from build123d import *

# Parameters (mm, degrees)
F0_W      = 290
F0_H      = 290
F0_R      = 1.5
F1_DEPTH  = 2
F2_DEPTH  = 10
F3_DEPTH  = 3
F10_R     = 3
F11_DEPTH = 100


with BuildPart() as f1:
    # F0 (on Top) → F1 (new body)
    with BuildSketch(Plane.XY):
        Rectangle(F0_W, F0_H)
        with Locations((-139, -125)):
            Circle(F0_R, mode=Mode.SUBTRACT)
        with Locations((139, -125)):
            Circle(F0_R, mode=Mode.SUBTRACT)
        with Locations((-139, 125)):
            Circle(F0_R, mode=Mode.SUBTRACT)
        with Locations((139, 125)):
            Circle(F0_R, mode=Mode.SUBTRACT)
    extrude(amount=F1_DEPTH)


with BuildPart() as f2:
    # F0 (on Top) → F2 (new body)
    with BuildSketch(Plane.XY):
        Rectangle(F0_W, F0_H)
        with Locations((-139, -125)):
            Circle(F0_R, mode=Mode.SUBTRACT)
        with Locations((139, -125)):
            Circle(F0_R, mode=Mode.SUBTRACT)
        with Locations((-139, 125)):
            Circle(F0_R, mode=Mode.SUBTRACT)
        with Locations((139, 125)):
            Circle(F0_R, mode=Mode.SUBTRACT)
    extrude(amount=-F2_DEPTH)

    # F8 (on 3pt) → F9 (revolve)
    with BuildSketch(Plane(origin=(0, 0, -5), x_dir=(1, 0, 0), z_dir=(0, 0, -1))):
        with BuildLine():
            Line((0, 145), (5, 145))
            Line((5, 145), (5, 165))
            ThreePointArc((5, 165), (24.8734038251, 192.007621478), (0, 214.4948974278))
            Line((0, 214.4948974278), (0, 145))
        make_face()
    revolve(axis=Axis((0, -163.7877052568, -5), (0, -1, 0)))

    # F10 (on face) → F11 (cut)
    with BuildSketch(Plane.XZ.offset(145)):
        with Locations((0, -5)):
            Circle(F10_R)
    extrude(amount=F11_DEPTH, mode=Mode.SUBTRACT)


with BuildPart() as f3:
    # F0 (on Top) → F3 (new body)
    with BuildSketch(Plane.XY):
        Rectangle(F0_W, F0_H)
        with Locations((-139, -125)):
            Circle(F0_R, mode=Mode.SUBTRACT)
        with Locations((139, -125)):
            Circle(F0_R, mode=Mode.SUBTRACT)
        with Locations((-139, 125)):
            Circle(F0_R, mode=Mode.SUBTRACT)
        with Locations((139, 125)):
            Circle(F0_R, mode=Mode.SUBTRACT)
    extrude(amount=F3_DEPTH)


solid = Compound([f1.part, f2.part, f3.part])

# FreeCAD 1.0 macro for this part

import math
import FreeCAD as App
import Part
import Sketcher
from FreeCAD import Vector
Q = App.Units.Quantity


def add_polygon(sketch, points):
    """Adds a closed chain of lines whose ends are joined by coincident constraints."""
    first, n = sketch.GeometryCount, len(points)
    for a, b in zip(points, points[1:] + points[:1]):
        sketch.addGeometry(Part.LineSegment(App.Vector(*a, 0), App.Vector(*b, 0)), False)
    for i in range(n):
        sketch.addConstraint(Sketcher.Constraint("Coincident", first + i, 2, first + (i + 1) % n, 1))

doc = App.newDocument("Part")
body = doc.addObject("PartDesign::Body", "Body")

# Sketch on XY plane
sketch1 = body.newObject("Sketcher::SketchObject", "Sketch")
sketch1.AttachmentSupport = (doc.getObject("XY_Plane"), [""])
sketch1.MapMode = "FlatFace"
add_polygon(sketch1, [(-145, 145), (-145, -145), (145, -145), (145, 145)])  # lines 0-3
sketch1.addGeometry(Part.Circle(Vector(-139, -125, 0), Vector(0, 0, 1), 1.5), False)  # 4
sketch1.addGeometry(Part.Circle(Vector(139, -125, 0), Vector(0, 0, 1), 1.5), False)  # 5
sketch1.addGeometry(Part.Circle(Vector(-139, 125, 0), Vector(0, 0, 1), 1.5), False)  # 6
sketch1.addGeometry(Part.Circle(Vector(139, 125, 0), Vector(0, 0, 1), 1.5), False)  # 7
sketch1.addConstraint([
    Sketcher.Constraint("Vertical", 0),
    Sketcher.Constraint("Horizontal", 1),
    Sketcher.Constraint("Vertical", 2),
    Sketcher.Constraint("Horizontal", 3),
    Sketcher.Constraint("Equal", 4, 5),
    Sketcher.Constraint("Equal", 5, 6),
    Sketcher.Constraint("Equal", 6, 7),
    Sketcher.Constraint("Symmetric", 5, 3, 6, 3, -1, 1),
    Sketcher.Constraint("Symmetric", 4, 3, 7, 3, -1, 1),
    Sketcher.Constraint("Symmetric", 0, 2, 2, 2, -1, 1),
    Sketcher.Constraint("Symmetric", 4, 3, 5, 3, -2),
    Sketcher.Constraint("Equal", 3, 0),
    Sketcher.Constraint("Diameter", 4, Q("3 mm")),
    Sketcher.Constraint("DistanceX", 1, 1, 1, 2, Q("290 mm")),
    Sketcher.Constraint("DistanceX", 4, 3, -1, 1, Q("139 mm")),
    Sketcher.Constraint("DistanceY", 4, 3, -1, 1, Q("125 mm")),
])
pad1 = body.newObject("PartDesign::Pad", "Pad")
pad1.Profile = sketch1
pad1.Length = 2
body2 = doc.addObject("PartDesign::Body", "Body001")

# Sketch on XY plane
sketch2 = body2.newObject("Sketcher::SketchObject", "Sketch001")
sketch2.AttachmentSupport = (doc.getObject("XY_Plane001"), [""])
sketch2.MapMode = "FlatFace"
add_polygon(sketch2, [(-145, 145), (-145, -145), (145, -145), (145, 145)])  # lines 0-3
sketch2.addGeometry(Part.Circle(Vector(-139, -125, 0), Vector(0, 0, 1), 1.5), False)  # 4
sketch2.addGeometry(Part.Circle(Vector(139, -125, 0), Vector(0, 0, 1), 1.5), False)  # 5
sketch2.addGeometry(Part.Circle(Vector(-139, 125, 0), Vector(0, 0, 1), 1.5), False)  # 6
sketch2.addGeometry(Part.Circle(Vector(139, 125, 0), Vector(0, 0, 1), 1.5), False)  # 7
sketch2.addConstraint([
    Sketcher.Constraint("Vertical", 0),
    Sketcher.Constraint("Horizontal", 1),
    Sketcher.Constraint("Vertical", 2),
    Sketcher.Constraint("Horizontal", 3),
    Sketcher.Constraint("Equal", 4, 5),
    Sketcher.Constraint("Equal", 5, 6),
    Sketcher.Constraint("Equal", 6, 7),
    Sketcher.Constraint("Symmetric", 5, 3, 6, 3, -1, 1),
    Sketcher.Constraint("Symmetric", 4, 3, 7, 3, -1, 1),
    Sketcher.Constraint("Symmetric", 0, 2, 2, 2, -1, 1),
    Sketcher.Constraint("Symmetric", 4, 3, 5, 3, -2),
    Sketcher.Constraint("Equal", 3, 0),
    Sketcher.Constraint("Diameter", 4, Q("3 mm")),
    Sketcher.Constraint("DistanceX", 1, 1, 1, 2, Q("290 mm")),
    Sketcher.Constraint("DistanceX", 4, 3, -1, 1, Q("139 mm")),
    Sketcher.Constraint("DistanceY", 4, 3, -1, 1, Q("125 mm")),
])
pad2 = body2.newObject("PartDesign::Pad", "Pad001")
pad2.Profile = sketch2
pad2.Length = 10
pad2.Reversed = True

# Sketch on XY plane
sketch3 = body2.newObject("Sketcher::SketchObject", "Sketch002")
sketch3.AttachmentSupport = (doc.getObject("XY_Plane001"), [""])
sketch3.MapMode = "FlatFace"
sketch3.AttachmentOffset = App.Placement(Vector(0, 0, -5), App.Rotation())
sketch3.addGeometry([
    Part.LineSegment(Vector(0, -145, 0), Vector(5, -145, 0)),
    Part.LineSegment(Vector(5, -145, 0), Vector(5, -165, 0)),
    Part.ArcOfCircle(Part.Circle(Vector(0, -189, 0), Vector(0, 0, 1), 25), math.radians(-90), math.radians(78)),
    Part.LineSegment(Vector(0, -214, 0), Vector(0, -145, 0)),
], False)
sketch3.addConstraint([
    Sketcher.Constraint("Coincident", 0, 2, 1, 1),
    Sketcher.Constraint("Coincident", 1, 2, 2, 2),
    Sketcher.Constraint("Coincident", 2, 1, 3, 1),
    Sketcher.Constraint("Coincident", 3, 2, 0, 1),
    Sketcher.Constraint("Horizontal", 0),
    Sketcher.Constraint("Vertical", 1),
    Sketcher.Constraint("Vertical", 3),
    Sketcher.Constraint("PointOnObject", 2, 3, -2),
    Sketcher.Constraint("PointOnObject", 2, 1, -2),
    Sketcher.Constraint("Radius", 2, Q("25 mm")),
    Sketcher.Constraint("DistanceX", 0, 1, 0, 2, Q("5 mm")),
    Sketcher.Constraint("DistanceY", 1, 2, 1, 1, Q("20 mm")),
    Sketcher.Constraint("DistanceY", 0, 2, -1, 1, Q("145 mm")),
])
revolution = body2.newObject("PartDesign::Revolution", "Revolution")
revolution.Profile = sketch3
revolution.ReferenceAxis = (sketch3, ["V_Axis"])
revolution.Angle = 360

# Sketch on XZ plane
sketch4 = body2.newObject("Sketcher::SketchObject", "Sketch003")
sketch4.AttachmentSupport = (doc.getObject("XZ_Plane001"), [""])
sketch4.MapMode = "FlatFace"
sketch4.AttachmentOffset = App.Placement(Vector(0, 0, 145), App.Rotation())
sketch4.addGeometry(Part.Circle(Vector(0, -5, 0), Vector(0, 0, 1), 3), False)
sketch4.addConstraint([
    Sketcher.Constraint("PointOnObject", 0, 3, -2),
    Sketcher.Constraint("Diameter", 0, Q("6 mm")),
    Sketcher.Constraint("DistanceY", 0, 3, -1, 1, Q("5 mm")),
])
pocket1 = body2.newObject("PartDesign::Pocket", "Pocket")
pocket1.Profile = sketch4
pocket1.Length = 100
pocket1.Reversed = True
body3 = doc.addObject("PartDesign::Body", "Body002")

# Sketch on XY plane
sketch5 = body3.newObject("Sketcher::SketchObject", "Sketch004")
sketch5.AttachmentSupport = (doc.getObject("XY_Plane002"), [""])
sketch5.MapMode = "FlatFace"
add_polygon(sketch5, [(-145, 145), (-145, -145), (145, -145), (145, 145)])  # lines 0-3
sketch5.addGeometry(Part.Circle(Vector(-139, -125, 0), Vector(0, 0, 1), 1.5), False)  # 4
sketch5.addGeometry(Part.Circle(Vector(139, -125, 0), Vector(0, 0, 1), 1.5), False)  # 5
sketch5.addGeometry(Part.Circle(Vector(-139, 125, 0), Vector(0, 0, 1), 1.5), False)  # 6
sketch5.addGeometry(Part.Circle(Vector(139, 125, 0), Vector(0, 0, 1), 1.5), False)  # 7
sketch5.addConstraint([
    Sketcher.Constraint("Vertical", 0),
    Sketcher.Constraint("Horizontal", 1),
    Sketcher.Constraint("Vertical", 2),
    Sketcher.Constraint("Horizontal", 3),
    Sketcher.Constraint("Equal", 4, 5),
    Sketcher.Constraint("Equal", 5, 6),
    Sketcher.Constraint("Equal", 6, 7),
    Sketcher.Constraint("Symmetric", 5, 3, 6, 3, -1, 1),
    Sketcher.Constraint("Symmetric", 4, 3, 7, 3, -1, 1),
    Sketcher.Constraint("Symmetric", 0, 2, 2, 2, -1, 1),
    Sketcher.Constraint("Symmetric", 4, 3, 5, 3, -2),
    Sketcher.Constraint("Equal", 3, 0),
    Sketcher.Constraint("Diameter", 4, Q("3 mm")),
    Sketcher.Constraint("DistanceX", 1, 1, 1, 2, Q("290 mm")),
    Sketcher.Constraint("DistanceX", 4, 3, -1, 1, Q("139 mm")),
    Sketcher.Constraint("DistanceY", 4, 3, -1, 1, Q("125 mm")),
])
pad3 = body3.newObject("PartDesign::Pad", "Pad002")
pad3.Profile = sketch5
pad3.Length = 3

doc.recompute()
